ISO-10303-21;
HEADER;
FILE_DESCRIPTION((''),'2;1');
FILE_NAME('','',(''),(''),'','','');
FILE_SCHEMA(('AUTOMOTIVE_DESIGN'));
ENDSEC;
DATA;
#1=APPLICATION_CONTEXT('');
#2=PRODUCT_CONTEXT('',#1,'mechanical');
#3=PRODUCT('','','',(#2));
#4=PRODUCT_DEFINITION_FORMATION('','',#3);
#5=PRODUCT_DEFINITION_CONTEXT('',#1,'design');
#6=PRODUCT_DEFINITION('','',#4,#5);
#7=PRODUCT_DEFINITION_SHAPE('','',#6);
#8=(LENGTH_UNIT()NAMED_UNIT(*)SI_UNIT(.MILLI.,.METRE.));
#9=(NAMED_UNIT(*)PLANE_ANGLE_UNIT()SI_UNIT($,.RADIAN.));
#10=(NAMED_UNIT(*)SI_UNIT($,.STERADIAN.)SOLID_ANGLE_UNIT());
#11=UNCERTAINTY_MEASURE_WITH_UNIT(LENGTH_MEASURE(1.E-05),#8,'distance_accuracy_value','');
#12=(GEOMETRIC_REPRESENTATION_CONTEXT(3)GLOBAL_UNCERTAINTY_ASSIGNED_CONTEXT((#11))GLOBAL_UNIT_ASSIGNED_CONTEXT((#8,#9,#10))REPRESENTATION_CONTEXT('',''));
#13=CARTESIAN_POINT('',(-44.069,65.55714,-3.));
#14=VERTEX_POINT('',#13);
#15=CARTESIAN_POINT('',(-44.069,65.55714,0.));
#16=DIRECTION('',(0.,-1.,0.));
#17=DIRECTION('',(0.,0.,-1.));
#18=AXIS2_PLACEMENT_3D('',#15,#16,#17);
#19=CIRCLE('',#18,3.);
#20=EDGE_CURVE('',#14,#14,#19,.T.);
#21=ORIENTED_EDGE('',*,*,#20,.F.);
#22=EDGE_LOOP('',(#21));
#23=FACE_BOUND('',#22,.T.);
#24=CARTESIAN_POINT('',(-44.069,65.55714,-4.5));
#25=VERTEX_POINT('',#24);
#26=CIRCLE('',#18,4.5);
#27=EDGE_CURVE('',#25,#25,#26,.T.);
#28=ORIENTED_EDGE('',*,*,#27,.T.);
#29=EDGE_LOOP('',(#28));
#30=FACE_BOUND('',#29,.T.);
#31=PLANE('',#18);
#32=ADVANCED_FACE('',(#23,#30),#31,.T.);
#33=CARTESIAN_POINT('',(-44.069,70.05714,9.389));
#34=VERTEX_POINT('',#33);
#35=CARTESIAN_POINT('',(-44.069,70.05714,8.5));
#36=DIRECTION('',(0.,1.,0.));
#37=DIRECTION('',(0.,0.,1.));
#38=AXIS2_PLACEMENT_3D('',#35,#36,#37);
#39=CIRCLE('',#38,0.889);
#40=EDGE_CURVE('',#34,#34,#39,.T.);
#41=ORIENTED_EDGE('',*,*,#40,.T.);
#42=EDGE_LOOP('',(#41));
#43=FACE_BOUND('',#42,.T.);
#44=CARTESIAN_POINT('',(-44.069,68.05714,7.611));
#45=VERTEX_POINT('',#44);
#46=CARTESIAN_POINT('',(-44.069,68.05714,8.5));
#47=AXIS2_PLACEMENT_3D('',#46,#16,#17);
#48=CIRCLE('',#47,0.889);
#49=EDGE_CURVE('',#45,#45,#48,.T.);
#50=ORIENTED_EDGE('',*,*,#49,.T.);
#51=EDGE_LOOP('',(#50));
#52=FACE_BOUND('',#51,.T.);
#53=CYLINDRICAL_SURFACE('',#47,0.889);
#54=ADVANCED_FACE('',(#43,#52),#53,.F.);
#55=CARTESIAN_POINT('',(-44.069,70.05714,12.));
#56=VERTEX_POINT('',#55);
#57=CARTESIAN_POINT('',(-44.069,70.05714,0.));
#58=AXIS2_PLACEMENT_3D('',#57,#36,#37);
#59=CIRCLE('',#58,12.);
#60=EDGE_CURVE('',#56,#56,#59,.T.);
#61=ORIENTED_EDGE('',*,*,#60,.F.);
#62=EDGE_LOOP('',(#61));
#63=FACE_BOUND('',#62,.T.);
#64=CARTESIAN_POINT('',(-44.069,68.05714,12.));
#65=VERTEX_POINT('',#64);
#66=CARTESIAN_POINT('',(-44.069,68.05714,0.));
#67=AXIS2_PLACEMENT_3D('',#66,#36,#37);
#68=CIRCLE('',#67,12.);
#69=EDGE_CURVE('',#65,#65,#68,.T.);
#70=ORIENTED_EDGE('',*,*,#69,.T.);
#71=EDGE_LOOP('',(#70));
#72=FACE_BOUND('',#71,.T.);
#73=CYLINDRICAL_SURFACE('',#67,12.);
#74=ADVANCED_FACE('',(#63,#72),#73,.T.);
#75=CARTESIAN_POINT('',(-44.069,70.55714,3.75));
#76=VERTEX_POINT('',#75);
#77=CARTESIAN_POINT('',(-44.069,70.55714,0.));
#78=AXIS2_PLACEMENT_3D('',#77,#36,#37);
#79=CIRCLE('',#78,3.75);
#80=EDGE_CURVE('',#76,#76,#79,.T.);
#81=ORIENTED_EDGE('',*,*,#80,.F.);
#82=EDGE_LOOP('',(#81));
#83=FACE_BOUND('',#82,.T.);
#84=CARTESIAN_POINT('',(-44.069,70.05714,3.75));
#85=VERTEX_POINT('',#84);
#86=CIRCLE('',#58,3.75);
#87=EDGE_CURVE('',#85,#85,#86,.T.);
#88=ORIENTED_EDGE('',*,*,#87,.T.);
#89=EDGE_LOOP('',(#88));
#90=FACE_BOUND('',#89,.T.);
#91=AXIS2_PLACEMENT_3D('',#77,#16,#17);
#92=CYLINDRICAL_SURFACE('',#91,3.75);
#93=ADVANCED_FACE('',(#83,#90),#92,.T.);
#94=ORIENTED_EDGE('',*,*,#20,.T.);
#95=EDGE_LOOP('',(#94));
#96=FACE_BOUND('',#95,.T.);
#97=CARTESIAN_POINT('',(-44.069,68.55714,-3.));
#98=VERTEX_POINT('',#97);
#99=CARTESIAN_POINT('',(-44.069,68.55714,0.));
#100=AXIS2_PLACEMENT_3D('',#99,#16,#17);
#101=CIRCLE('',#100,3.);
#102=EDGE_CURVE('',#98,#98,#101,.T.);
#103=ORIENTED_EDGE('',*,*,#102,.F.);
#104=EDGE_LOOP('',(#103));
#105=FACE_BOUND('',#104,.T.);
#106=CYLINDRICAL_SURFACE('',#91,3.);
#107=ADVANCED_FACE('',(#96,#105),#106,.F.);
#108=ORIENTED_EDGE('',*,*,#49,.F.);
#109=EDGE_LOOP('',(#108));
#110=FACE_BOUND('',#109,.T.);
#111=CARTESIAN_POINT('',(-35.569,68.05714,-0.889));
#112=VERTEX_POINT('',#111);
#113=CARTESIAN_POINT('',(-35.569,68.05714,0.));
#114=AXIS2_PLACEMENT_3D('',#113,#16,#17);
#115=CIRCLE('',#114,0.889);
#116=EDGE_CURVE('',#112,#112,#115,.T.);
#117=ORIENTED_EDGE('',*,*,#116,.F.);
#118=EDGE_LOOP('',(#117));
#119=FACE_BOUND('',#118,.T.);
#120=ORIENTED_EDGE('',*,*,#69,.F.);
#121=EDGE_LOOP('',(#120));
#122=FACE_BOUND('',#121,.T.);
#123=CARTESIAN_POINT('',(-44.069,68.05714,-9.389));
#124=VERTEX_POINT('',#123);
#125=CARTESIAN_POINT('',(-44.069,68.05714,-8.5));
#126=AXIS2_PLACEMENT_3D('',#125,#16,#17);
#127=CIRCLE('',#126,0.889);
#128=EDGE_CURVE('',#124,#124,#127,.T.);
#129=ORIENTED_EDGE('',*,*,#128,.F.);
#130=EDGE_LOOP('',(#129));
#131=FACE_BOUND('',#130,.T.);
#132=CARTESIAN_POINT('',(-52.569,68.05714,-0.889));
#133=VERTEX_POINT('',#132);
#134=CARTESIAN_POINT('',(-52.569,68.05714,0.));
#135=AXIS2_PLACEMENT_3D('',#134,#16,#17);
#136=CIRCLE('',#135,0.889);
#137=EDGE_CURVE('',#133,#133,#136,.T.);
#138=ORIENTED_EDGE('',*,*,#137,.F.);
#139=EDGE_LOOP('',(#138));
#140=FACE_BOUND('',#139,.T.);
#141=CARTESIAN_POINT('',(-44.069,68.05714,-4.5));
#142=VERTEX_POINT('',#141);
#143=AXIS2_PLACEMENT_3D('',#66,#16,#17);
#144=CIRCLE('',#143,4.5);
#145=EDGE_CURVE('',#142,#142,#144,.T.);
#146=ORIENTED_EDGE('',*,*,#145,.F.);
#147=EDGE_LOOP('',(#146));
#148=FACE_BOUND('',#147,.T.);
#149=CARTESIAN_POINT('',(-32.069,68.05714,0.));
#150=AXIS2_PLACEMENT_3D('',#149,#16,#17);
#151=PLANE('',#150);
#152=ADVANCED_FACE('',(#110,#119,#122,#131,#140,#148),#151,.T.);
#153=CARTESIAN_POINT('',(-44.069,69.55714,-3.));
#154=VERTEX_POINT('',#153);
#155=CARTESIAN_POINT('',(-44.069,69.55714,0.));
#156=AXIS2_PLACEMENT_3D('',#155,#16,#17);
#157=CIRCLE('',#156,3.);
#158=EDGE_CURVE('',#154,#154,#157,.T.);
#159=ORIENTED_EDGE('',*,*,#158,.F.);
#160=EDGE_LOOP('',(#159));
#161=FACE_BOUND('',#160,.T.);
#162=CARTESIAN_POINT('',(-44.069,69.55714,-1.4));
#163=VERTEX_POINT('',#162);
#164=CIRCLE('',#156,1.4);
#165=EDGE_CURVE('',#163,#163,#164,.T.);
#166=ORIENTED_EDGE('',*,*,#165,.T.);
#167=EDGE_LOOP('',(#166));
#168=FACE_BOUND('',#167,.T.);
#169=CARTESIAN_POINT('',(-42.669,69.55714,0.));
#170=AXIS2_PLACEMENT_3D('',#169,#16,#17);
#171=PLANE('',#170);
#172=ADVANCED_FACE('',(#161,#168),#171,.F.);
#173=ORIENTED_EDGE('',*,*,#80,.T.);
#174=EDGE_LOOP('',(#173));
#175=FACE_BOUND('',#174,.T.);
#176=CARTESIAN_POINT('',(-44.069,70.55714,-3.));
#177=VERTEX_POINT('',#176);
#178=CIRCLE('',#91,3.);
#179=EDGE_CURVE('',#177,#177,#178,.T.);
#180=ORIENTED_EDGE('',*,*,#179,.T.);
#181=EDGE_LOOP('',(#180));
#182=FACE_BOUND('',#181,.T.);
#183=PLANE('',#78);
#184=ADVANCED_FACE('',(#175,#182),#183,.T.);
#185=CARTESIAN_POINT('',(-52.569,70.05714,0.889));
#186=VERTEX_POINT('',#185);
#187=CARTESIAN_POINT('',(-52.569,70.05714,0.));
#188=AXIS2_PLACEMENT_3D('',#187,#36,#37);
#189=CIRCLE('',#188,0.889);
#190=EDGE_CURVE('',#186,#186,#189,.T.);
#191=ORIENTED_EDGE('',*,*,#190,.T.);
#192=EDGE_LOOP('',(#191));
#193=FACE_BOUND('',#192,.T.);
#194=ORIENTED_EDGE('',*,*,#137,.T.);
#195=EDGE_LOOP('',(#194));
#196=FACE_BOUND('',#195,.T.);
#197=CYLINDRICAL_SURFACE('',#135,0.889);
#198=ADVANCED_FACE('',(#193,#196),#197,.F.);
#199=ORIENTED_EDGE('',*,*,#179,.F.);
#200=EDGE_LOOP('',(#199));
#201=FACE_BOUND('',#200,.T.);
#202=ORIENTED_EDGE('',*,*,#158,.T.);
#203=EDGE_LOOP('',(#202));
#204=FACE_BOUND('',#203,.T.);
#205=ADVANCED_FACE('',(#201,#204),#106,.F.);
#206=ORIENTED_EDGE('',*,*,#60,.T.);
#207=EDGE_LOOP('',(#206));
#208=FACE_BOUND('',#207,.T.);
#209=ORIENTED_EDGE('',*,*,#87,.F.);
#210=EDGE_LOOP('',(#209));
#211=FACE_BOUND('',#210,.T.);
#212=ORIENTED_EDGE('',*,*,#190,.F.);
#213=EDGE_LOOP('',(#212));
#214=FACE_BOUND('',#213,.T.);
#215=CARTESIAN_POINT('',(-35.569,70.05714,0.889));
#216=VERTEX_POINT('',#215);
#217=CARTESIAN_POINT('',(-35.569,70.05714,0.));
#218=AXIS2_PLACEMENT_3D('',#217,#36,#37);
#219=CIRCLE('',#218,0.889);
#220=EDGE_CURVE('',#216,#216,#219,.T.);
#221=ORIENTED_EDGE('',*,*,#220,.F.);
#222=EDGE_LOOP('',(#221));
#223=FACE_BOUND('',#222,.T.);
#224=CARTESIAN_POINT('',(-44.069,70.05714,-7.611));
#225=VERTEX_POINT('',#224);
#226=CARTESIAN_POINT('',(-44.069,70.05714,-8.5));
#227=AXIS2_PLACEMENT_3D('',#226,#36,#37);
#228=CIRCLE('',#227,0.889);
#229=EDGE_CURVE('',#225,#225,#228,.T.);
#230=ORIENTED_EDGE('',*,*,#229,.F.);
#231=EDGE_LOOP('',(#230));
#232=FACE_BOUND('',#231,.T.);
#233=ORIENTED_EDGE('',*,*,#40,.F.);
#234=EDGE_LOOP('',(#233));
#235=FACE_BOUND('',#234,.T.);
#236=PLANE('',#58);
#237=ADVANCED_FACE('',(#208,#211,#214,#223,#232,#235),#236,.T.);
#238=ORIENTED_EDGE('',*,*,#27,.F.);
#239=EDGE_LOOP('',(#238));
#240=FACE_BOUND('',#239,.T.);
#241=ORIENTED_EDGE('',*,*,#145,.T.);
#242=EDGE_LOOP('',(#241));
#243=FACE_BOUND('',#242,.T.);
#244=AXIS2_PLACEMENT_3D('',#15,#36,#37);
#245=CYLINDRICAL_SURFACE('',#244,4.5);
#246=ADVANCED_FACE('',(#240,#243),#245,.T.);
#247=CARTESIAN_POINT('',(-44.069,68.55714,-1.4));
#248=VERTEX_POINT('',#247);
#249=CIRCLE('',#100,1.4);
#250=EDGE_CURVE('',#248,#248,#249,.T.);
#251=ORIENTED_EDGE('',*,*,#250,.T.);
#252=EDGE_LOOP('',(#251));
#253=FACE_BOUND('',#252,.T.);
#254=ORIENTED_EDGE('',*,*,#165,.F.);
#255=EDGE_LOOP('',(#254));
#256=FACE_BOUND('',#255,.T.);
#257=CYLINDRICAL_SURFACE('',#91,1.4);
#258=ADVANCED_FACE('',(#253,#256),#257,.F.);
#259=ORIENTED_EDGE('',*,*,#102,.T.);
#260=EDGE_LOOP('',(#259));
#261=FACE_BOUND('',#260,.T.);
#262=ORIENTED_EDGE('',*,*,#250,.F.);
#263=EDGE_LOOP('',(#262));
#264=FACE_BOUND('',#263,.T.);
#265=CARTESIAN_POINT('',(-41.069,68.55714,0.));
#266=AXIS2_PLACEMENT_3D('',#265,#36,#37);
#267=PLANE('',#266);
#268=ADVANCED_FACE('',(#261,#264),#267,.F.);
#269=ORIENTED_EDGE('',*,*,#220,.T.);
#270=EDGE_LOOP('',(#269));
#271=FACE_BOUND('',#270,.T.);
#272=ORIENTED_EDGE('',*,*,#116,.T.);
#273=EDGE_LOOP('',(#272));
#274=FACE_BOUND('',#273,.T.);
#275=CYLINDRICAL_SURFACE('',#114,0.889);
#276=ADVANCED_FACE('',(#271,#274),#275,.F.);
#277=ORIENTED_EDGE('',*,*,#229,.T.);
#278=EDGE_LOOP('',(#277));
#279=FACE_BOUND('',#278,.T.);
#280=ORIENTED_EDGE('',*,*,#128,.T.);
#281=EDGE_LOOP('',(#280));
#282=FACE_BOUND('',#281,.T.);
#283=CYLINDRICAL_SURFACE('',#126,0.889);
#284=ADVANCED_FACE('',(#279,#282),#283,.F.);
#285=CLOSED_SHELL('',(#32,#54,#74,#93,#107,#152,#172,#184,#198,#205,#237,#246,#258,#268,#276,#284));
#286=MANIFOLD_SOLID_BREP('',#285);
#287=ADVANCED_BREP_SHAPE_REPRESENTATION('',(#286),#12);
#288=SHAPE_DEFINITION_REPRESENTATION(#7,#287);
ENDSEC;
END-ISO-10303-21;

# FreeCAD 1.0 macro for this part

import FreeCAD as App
import Part
import Sketcher
Q = App.Units.Quantity

doc = App.newDocument("Part")
params = doc.addObject("Spreadsheet::Sheet", "Params")
for row, (alias, value) in enumerate([
    ("sketch1_width", "12 mm"),
    ("sketch1_height", "2 mm"),
    ("revolution_angle", "360 deg"),
    ("sketch2_diameter", "9 mm"),
    ("pad1_length", "2.5 mm"),
    ("sketch3_diameter", "7.5 mm"),
    ("pad2_length", "0.5 mm"),
    ("sketch4_width", "3 mm"),
    ("sketch4_height", "5 mm"),
    ("sketch4_width2", "1.6 mm"),
    ("groove_angle", "360 deg"),
    ("hole_diameter", "1.778 mm"),
    ("hole_depth", "2.5 mm"),
], start=1):
    params.set(f"A{row}", alias)
    params.set(f"B{row}", "=" + value)
    params.setAlias(f"B{row}", alias)

body = doc.addObject("PartDesign::Body", "Body")

# Sketch on XY plane
sketch1 = body.newObject("Sketcher::SketchObject", "Sketch")
sketch1.AttachmentSupport = (doc.getObject("XY_Plane"), [""])
sketch1.MapMode = "FlatFace"
sketch1.addGeometry([
    Part.LineSegment(App.Vector(-32.069, 70.05714, 0), App.Vector(-32.069, 68.05714, 0)),
    Part.LineSegment(App.Vector(-32.069, 68.05714, 0), App.Vector(-44.069, 68.05714, 0)),
    Part.LineSegment(App.Vector(-44.069, 68.05714, 0), App.Vector(-44.069, 70.05714, 0)),
    Part.LineSegment(App.Vector(-44.069, 70.05714, 0), App.Vector(-32.069, 70.05714, 0)),
], False)
sketch1.addGeometry(Part.LineSegment(App.Vector(-44.069, 68.05714, 0), App.Vector(-44.069, 70.05714, 0)), True)  # axis
sketch1.addConstraint([
    Sketcher.Constraint("Coincident", 0, 2, 1, 1),
    Sketcher.Constraint("Coincident", 1, 2, 2, 1),
    Sketcher.Constraint("Coincident", 2, 2, 3, 1),
    Sketcher.Constraint("Coincident", 3, 2, 0, 1),
    Sketcher.Constraint("Vertical", 0),
    Sketcher.Constraint("Horizontal", 1),
    Sketcher.Constraint("Vertical", 2),
    Sketcher.Constraint("Horizontal", 3),
    Sketcher.Constraint("Vertical", 4),
    Sketcher.Constraint("Coincident", 4, 1, 1, 2),
    Sketcher.Constraint("Horizontal", 3, 2, 4, 2),
    Sketcher.Constraint("DistanceX", 1, 2, 1, 1, Q("12 mm")),
    Sketcher.Constraint("DistanceY", 0, 2, 0, 1, Q("2 mm")),
    Sketcher.Constraint("DistanceX", 0, 2, -1, 1, Q("32.069 mm")),
    Sketcher.Constraint("DistanceY", -1, 1, 0, 2, Q("68.05714 mm")),
])
sketch1.setExpression("Constraints[11]", "Params.sketch1_width")
sketch1.setExpression("Constraints[12]", "Params.sketch1_height")
revolution = body.newObject("PartDesign::Revolution", "Revolution")
revolution.Profile = sketch1
revolution.ReferenceAxis = (sketch1, ["Axis0"])
revolution.setExpression("Angle", "Params.revolution_angle")

# Sketch on XZ plane
sketch2 = body.newObject("Sketcher::SketchObject", "Sketch001")
sketch2.AttachmentSupport = (doc.getObject("XZ_Plane"), [""])
sketch2.MapMode = "FlatFace"
sketch2.AttachmentOffset = App.Placement(App.Vector(0, 0, -68.05714), App.Rotation())
sketch2.addGeometry(Part.Circle(App.Vector(-44.069, 0, 0), App.Vector(0, 0, 1), 4.5), False)
sketch2.addConstraint([
    Sketcher.Constraint("PointOnObject", 0, 3, -1),
    Sketcher.Constraint("Diameter", 0, Q("9 mm")),
    Sketcher.Constraint("DistanceX", 0, 3, -1, 1, Q("44.069 mm")),
])
sketch2.setExpression("Constraints[1]", "Params.sketch2_diameter")
pad1 = body.newObject("PartDesign::Pad", "Pad")
pad1.Profile = sketch2
pad1.setExpression("Length", "Params.pad1_length")

# Sketch on XZ plane
sketch3 = body.newObject("Sketcher::SketchObject", "Sketch002")
sketch3.AttachmentSupport = (doc.getObject("XZ_Plane"), [""])
sketch3.MapMode = "FlatFace"
sketch3.AttachmentOffset = App.Placement(App.Vector(0, 0, -70.05714), App.Rotation())
sketch3.addGeometry(Part.Circle(App.Vector(-44.069, 0, 0), App.Vector(0, 0, 1), 3.75), False)
sketch3.addConstraint([
    Sketcher.Constraint("PointOnObject", 0, 3, -1),
    Sketcher.Constraint("Diameter", 0, Q("7.5 mm")),
    Sketcher.Constraint("DistanceX", 0, 3, -1, 1, Q("44.069 mm")),
])
sketch3.setExpression("Constraints[1]", "Params.sketch3_diameter")
pad2 = body.newObject("PartDesign::Pad", "Pad001")
pad2.Profile = sketch3
pad2.setExpression("Length", "Params.pad2_length")
pad2.Reversed = True

# Sketch on XY plane
sketch4 = body.newObject("Sketcher::SketchObject", "Sketch003")
sketch4.AttachmentSupport = (doc.getObject("XY_Plane"), [""])
sketch4.MapMode = "FlatFace"
sketch4.addGeometry([
    Part.LineSegment(App.Vector(-41.069, 70.55714, 0), App.Vector(-44.069, 70.55714, 0)),  # 0
    Part.LineSegment(App.Vector(-44.069, 70.55714, 0), App.Vector(-44.069, 65.55714, 0)),  # 1
    Part.LineSegment(App.Vector(-44.069, 65.55714, 0), App.Vector(-41.069, 65.55714, 0)),  # 2
    Part.LineSegment(App.Vector(-41.069, 65.55714, 0), App.Vector(-41.069, 68.55714, 0)),  # 3
    Part.LineSegment(App.Vector(-41.069, 68.55714, 0), App.Vector(-42.669, 68.55714, 0)),  # 4
    Part.LineSegment(App.Vector(-42.669, 68.55714, 0), App.Vector(-42.669, 69.55714, 0)),  # 5
    Part.LineSegment(App.Vector(-42.669, 69.55714, 0), App.Vector(-41.069, 69.55714, 0)),  # 6
    Part.LineSegment(App.Vector(-41.069, 69.55714, 0), App.Vector(-41.069, 70.55714, 0)),  # 7
], False)
sketch4.addGeometry(Part.LineSegment(App.Vector(-44.069, 70.55714, 0), App.Vector(-44.069, 65.55714, 0)), True)  # axis
sketch4.addConstraint([
    Sketcher.Constraint("Coincident", 0, 2, 1, 1),
    Sketcher.Constraint("Coincident", 1, 2, 2, 1),
    Sketcher.Constraint("Coincident", 2, 2, 3, 1),
    Sketcher.Constraint("Coincident", 3, 2, 4, 1),
    Sketcher.Constraint("Coincident", 4, 2, 5, 1),
    Sketcher.Constraint("Coincident", 5, 2, 6, 1),
    Sketcher.Constraint("Coincident", 6, 2, 7, 1),
    Sketcher.Constraint("Coincident", 7, 2, 0, 1),
    Sketcher.Constraint("Horizontal", 0),
    Sketcher.Constraint("Vertical", 1),
    Sketcher.Constraint("Horizontal", 2),
    Sketcher.Constraint("Vertical", 3),
    Sketcher.Constraint("Horizontal", 4),
    Sketcher.Constraint("Vertical", 5),
    Sketcher.Constraint("Horizontal", 6),
    Sketcher.Constraint("Vertical", 7),
    Sketcher.Constraint("Vertical", 8),
    Sketcher.Constraint("Coincident", 8, 1, 0, 2),
    Sketcher.Constraint("Horizontal", 2, 2, 8, 2),
    Sketcher.Constraint("Vertical", 3, 2, 6, 2),
    Sketcher.Constraint("Equal", 2, 3),
    Sketcher.Constraint("Equal", 5, 7),
    Sketcher.Constraint("DistanceX", 0, 2, 0, 1, Q("3 mm")),
    Sketcher.Constraint("DistanceY", 1, 2, 1, 1, Q("5 mm")),
    Sketcher.Constraint("DistanceX", 4, 2, 4, 1, Q("1.6 mm")),
    Sketcher.Constraint("DistanceX", 0, 2, -1, 1, Q("44.069 mm")),
    Sketcher.Constraint("DistanceY", -1, 1, 0, 2, Q("70.55714 mm")),
])
sketch4.setExpression("Constraints[22]", "Params.sketch4_width")
sketch4.setExpression("Constraints[23]", "Params.sketch4_height")
sketch4.setExpression("Constraints[24]", "Params.sketch4_width2")
groove = body.newObject("PartDesign::Groove", "Groove")
groove.Profile = sketch4
groove.ReferenceAxis = (sketch4, ["Axis0"])
groove.setExpression("Angle", "Params.groove_angle")

# Sketch on XZ plane
sketch5 = body.newObject("Sketcher::SketchObject", "Sketch004")
sketch5.AttachmentSupport = (doc.getObject("XZ_Plane"), [""])
sketch5.MapMode = "FlatFace"
sketch5.AttachmentOffset = App.Placement(App.Vector(0, 0, -68.05714), App.Rotation())
sketch5.addGeometry([
    Part.Circle(App.Vector(-44.069, -8.5, 0), App.Vector(0, 0, 1), 0.889),
    Part.Circle(App.Vector(-52.569, 0, 0), App.Vector(0, 0, 1), 0.889),
    Part.Circle(App.Vector(-35.569, 0, 0), App.Vector(0, 0, 1), 0.889),
    Part.Circle(App.Vector(-44.069, 8.5, 0), App.Vector(0, 0, 1), 0.889),
], False)
sketch5.addConstraint([
    Sketcher.Constraint("Equal", 0, 1),
    Sketcher.Constraint("Equal", 1, 2),
    Sketcher.Constraint("Equal", 2, 3),
    Sketcher.Constraint("Symmetric", 0, 3, 3, 3, -1),
    Sketcher.Constraint("PointOnObject", 1, 3, -1),
    Sketcher.Constraint("PointOnObject", 2, 3, -1),
    Sketcher.Constraint("Diameter", 0, Q("1.778 mm")),
    Sketcher.Constraint("DistanceX", 1, 3, 2, 3, Q("17 mm")),
    Sketcher.Constraint("DistanceY", 0, 3, 3, 3, Q("17 mm")),
    Sketcher.Constraint("DistanceX", 1, 3, 0, 3, Q("8.5 mm")),
    Sketcher.Constraint("DistanceX", 0, 3, -1, 1, Q("44.069 mm")),
])
doc.recompute()
hole = body.newObject("PartDesign::Hole", "Hole")
hole.Profile = sketch5
hole.ThreadType = "None"
hole.setExpression("Diameter", "Params.hole_diameter")
hole.DepthType = "Dimension"
hole.setExpression("Depth", "Params.hole_depth")
hole.DrillPoint = "Flat"

doc.recompute()
